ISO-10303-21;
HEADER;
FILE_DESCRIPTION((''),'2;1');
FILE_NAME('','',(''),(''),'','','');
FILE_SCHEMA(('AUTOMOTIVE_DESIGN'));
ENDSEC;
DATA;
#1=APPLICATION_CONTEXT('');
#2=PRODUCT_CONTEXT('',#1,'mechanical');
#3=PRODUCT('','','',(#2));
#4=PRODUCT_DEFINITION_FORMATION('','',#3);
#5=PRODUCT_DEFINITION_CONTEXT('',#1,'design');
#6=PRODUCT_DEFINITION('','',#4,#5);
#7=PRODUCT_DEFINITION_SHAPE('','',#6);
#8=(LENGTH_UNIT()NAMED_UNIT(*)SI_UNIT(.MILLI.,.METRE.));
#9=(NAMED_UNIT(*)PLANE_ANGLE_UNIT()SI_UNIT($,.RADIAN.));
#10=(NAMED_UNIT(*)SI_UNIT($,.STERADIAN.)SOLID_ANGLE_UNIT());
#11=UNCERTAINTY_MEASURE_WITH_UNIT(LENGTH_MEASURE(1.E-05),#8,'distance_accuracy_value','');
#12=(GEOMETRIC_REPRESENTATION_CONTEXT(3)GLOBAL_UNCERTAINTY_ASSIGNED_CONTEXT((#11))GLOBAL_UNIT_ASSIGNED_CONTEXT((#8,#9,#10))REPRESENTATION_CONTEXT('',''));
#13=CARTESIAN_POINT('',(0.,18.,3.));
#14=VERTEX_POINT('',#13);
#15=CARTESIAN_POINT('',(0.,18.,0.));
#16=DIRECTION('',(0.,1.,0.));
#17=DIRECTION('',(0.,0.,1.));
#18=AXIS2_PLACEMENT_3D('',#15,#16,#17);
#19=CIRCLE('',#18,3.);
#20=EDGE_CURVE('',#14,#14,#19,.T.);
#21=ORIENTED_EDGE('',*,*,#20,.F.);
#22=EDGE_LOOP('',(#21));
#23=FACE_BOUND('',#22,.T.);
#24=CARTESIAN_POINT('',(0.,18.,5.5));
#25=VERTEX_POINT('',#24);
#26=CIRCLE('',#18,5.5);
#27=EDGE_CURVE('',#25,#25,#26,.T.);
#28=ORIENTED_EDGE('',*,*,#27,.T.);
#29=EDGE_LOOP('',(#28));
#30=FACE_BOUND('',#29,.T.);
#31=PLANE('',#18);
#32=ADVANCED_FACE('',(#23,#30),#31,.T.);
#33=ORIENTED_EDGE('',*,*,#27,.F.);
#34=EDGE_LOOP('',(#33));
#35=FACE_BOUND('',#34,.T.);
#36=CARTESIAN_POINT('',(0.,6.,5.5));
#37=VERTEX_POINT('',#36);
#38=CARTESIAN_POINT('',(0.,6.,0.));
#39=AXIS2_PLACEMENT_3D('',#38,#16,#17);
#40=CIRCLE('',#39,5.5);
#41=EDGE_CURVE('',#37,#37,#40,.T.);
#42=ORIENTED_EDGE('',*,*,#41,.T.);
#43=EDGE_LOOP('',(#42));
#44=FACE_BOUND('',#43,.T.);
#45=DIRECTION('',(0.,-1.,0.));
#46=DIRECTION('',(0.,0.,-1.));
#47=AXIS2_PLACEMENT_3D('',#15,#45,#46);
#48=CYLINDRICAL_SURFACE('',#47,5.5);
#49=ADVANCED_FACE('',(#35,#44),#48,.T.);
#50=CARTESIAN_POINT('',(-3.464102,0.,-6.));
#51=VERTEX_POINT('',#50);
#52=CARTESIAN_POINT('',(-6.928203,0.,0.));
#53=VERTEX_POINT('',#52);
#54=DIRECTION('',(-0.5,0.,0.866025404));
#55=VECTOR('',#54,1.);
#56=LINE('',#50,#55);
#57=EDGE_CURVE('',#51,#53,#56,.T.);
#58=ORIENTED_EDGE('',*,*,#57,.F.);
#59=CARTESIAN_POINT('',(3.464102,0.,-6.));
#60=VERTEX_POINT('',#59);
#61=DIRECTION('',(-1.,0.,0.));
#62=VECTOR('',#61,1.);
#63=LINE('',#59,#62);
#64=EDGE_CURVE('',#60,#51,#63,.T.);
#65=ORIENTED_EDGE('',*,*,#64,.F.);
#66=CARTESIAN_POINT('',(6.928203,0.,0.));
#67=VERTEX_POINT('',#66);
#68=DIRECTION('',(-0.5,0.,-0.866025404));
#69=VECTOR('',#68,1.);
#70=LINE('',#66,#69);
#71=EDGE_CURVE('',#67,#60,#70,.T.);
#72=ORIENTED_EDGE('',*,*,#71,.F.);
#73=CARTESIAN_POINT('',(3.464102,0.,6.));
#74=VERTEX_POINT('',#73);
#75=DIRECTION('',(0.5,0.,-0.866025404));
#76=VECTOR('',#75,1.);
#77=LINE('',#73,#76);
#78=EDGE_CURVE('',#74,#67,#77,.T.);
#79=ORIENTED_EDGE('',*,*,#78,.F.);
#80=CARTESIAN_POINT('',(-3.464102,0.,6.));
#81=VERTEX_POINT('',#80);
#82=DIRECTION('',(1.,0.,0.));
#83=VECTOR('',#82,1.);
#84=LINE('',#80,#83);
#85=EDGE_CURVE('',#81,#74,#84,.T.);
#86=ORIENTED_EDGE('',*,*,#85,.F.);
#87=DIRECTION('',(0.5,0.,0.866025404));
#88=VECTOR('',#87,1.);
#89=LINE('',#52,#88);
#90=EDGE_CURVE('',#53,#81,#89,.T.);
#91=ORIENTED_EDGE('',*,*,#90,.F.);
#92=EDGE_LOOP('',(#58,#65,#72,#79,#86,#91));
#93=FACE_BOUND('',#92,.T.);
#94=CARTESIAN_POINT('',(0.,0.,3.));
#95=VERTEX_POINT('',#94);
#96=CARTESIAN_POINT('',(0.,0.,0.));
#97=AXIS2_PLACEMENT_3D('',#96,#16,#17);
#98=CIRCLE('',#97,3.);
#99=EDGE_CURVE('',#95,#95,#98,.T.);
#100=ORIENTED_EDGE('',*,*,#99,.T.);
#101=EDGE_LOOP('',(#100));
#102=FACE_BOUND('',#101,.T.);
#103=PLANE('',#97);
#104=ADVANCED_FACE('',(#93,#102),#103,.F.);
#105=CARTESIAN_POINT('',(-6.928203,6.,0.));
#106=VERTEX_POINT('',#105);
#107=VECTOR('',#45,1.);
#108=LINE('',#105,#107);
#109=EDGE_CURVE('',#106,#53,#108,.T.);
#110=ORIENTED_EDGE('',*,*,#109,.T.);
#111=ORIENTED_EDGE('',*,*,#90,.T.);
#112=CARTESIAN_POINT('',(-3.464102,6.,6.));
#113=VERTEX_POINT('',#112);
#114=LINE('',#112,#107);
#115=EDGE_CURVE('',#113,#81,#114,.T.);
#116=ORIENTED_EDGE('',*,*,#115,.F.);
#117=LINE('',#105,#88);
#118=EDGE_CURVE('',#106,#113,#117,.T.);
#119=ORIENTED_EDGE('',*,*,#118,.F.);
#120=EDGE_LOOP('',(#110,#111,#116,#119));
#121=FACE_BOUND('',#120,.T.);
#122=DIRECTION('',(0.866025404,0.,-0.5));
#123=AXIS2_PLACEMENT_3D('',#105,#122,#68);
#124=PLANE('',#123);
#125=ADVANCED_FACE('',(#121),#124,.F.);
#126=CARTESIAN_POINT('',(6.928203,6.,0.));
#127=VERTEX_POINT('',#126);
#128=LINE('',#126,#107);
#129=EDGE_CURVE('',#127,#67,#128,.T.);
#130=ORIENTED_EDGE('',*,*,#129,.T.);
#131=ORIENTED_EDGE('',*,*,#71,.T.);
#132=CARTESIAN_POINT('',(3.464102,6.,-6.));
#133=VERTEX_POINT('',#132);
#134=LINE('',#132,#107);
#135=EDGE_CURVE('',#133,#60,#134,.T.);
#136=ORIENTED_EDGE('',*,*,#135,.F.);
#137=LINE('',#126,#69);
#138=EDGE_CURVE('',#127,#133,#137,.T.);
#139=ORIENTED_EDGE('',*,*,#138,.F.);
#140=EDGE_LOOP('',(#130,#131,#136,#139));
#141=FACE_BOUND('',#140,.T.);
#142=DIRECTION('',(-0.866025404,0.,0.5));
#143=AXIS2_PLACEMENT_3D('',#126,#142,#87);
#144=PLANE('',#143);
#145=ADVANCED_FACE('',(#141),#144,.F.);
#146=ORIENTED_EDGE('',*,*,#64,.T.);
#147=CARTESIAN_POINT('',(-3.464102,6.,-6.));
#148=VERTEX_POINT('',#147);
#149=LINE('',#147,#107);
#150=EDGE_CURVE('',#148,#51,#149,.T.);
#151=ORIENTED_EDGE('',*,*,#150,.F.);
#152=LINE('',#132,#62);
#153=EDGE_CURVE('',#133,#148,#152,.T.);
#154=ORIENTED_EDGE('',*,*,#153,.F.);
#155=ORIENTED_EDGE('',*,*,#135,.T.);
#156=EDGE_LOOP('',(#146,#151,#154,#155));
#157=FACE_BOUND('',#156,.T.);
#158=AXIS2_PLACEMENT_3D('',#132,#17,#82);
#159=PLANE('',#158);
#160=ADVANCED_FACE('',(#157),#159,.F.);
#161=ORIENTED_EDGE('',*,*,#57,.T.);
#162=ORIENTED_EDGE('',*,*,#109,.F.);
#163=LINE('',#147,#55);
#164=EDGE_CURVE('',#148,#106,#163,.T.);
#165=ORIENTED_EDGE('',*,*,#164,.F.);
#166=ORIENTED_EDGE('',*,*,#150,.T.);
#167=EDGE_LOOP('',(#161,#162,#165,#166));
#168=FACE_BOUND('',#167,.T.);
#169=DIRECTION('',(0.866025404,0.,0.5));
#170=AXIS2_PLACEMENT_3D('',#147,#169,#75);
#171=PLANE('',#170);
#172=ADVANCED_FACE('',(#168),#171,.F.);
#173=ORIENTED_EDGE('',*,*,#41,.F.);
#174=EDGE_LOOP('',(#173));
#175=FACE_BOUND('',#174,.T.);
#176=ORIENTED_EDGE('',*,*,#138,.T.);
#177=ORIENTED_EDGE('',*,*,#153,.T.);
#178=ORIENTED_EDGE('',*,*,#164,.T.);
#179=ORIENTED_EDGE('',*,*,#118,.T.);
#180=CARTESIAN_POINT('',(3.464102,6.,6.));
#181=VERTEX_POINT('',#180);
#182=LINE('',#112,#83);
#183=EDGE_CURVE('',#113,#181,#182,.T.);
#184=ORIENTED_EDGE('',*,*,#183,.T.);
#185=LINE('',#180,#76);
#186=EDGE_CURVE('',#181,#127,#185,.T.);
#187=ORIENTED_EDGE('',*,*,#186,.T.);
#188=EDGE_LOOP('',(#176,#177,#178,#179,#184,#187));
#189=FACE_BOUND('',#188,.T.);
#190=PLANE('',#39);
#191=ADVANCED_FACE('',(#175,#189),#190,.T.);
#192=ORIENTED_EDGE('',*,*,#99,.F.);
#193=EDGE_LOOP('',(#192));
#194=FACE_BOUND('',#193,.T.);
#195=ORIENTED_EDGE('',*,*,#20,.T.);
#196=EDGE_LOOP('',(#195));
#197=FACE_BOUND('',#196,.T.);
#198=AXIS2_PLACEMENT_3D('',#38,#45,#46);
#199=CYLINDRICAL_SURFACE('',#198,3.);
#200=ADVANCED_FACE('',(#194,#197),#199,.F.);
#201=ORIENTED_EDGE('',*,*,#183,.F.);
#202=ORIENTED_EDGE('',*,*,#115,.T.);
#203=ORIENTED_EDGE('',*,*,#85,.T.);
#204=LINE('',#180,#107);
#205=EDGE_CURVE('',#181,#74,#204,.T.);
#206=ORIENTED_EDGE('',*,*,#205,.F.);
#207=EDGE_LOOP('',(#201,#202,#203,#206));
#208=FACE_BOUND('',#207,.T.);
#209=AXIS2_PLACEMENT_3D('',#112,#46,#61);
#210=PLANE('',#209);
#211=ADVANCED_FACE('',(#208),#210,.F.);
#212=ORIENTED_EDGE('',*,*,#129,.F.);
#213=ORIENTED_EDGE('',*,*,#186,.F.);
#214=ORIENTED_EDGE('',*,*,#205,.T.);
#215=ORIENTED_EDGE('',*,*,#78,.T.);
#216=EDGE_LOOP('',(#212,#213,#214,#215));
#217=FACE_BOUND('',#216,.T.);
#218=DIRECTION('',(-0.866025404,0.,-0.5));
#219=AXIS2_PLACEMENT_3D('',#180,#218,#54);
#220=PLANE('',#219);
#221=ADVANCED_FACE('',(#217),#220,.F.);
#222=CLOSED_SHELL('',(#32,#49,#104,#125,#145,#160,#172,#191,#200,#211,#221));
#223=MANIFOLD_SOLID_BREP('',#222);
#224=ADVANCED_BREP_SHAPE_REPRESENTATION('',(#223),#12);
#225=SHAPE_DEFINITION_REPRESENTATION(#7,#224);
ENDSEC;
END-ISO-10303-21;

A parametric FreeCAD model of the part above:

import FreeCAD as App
import Part
import Sketcher
Q = App.Units.Quantity

doc = App.newDocument("Part")
body = doc.addObject("PartDesign::Body", "Body")

# Sketch on XZ plane
sketch1 = doc.addObject("Sketcher::SketchObject", "Sketch")
body.addObject(sketch1)
sketch1.AttachmentSupport = (doc.XZ_Plane, [""])
sketch1.MapMode = "FlatFace"
sketch1.addGeometry([
    Part.LineSegment(App.Vector(6.928203, 0, 0), App.Vector(3.464102, -6, 0)),  # 0
    Part.LineSegment(App.Vector(3.464102, -6, 0), App.Vector(-3.464102, -6, 0)),  # 1
    Part.LineSegment(App.Vector(-3.464102, -6, 0), App.Vector(-6.928203, 0, 0)),  # 2
    Part.LineSegment(App.Vector(-6.928203, 0, 0), App.Vector(-3.464102, 6, 0)),  # 3
    Part.LineSegment(App.Vector(-3.464102, 6, 0), App.Vector(3.464102, 6, 0)),  # 4
    Part.LineSegment(App.Vector(3.464102, 6, 0), App.Vector(6.928203, 0, 0)),  # 5
    Part.Circle(App.Vector(0, 0, 0), App.Vector(0, 0, 1), 3),  # 6
], False)
sketch1.addConstraint([
    Sketcher.Constraint("Coincident", 0, 2, 1, 1),
    Sketcher.Constraint("Coincident", 1, 2, 2, 1),
    Sketcher.Constraint("Coincident", 2, 2, 3, 1),
    Sketcher.Constraint("Coincident", 3, 2, 4, 1),
    Sketcher.Constraint("Coincident", 4, 2, 5, 1),
    Sketcher.Constraint("Coincident", 5, 2, 0, 1),
    Sketcher.Constraint("Horizontal", 1),
    Sketcher.Constraint("Horizontal", 4),
    Sketcher.Constraint("Coincident", 6, 3, -1, 1),
    Sketcher.Constraint("Symmetric", 0, 2, 3, 2, -1, 1),
    Sketcher.Constraint("Symmetric", 2, 2, 5, 2, -1, 1),
    Sketcher.Constraint("PointOnObject", 2, 2, -1),
    Sketcher.Constraint("Parallel", 2, 5),
    Sketcher.Constraint("Vertical", 1, 2, 3, 2),
    Sketcher.Constraint("Diameter", 6, Q("6 mm")),
    Sketcher.Constraint("Angle", 0, Q("-120 deg")),
    Sketcher.Constraint("DistanceY", 0, 2, -1, 1, Q("6 mm")),
    Sketcher.Constraint("DistanceX", -1, 1, 0, 2, Q("3.464102 mm")),
])
pad1 = doc.addObject("PartDesign::Pad", "Pad")
body.addObject(pad1)
pad1.Profile = sketch1
pad1.Length = 6
pad1.Reversed = True

# Sketch on XZ plane
sketch2 = doc.addObject("Sketcher::SketchObject", "Sketch001")
body.addObject(sketch2)
sketch2.AttachmentSupport = (doc.XZ_Plane, [""])
sketch2.MapMode = "FlatFace"
sketch2.AttachmentOffset = App.Placement(App.Vector(0, 0, -6), App.Rotation())
sketch2.addGeometry([
    Part.Circle(App.Vector(0, 0, 0), App.Vector(0, 0, 1), 5.5),
    Part.Circle(App.Vector(0, 0, 0), App.Vector(0, 0, 1), 3),
], False)
sketch2.addConstraint([
    Sketcher.Constraint("Coincident", 0, 3, -1, 1),
    Sketcher.Constraint("Coincident", 1, 3, -1, 1),
    Sketcher.Constraint("Diameter", 0, Q("11 mm")),
    Sketcher.Constraint("Diameter", 1, Q("6 mm")),
])
pad2 = doc.addObject("PartDesign::Pad", "Pad001")
body.addObject(pad2)
pad2.Profile = sketch2
pad2.Length = 12
pad2.Reversed = True

doc.recompute()
